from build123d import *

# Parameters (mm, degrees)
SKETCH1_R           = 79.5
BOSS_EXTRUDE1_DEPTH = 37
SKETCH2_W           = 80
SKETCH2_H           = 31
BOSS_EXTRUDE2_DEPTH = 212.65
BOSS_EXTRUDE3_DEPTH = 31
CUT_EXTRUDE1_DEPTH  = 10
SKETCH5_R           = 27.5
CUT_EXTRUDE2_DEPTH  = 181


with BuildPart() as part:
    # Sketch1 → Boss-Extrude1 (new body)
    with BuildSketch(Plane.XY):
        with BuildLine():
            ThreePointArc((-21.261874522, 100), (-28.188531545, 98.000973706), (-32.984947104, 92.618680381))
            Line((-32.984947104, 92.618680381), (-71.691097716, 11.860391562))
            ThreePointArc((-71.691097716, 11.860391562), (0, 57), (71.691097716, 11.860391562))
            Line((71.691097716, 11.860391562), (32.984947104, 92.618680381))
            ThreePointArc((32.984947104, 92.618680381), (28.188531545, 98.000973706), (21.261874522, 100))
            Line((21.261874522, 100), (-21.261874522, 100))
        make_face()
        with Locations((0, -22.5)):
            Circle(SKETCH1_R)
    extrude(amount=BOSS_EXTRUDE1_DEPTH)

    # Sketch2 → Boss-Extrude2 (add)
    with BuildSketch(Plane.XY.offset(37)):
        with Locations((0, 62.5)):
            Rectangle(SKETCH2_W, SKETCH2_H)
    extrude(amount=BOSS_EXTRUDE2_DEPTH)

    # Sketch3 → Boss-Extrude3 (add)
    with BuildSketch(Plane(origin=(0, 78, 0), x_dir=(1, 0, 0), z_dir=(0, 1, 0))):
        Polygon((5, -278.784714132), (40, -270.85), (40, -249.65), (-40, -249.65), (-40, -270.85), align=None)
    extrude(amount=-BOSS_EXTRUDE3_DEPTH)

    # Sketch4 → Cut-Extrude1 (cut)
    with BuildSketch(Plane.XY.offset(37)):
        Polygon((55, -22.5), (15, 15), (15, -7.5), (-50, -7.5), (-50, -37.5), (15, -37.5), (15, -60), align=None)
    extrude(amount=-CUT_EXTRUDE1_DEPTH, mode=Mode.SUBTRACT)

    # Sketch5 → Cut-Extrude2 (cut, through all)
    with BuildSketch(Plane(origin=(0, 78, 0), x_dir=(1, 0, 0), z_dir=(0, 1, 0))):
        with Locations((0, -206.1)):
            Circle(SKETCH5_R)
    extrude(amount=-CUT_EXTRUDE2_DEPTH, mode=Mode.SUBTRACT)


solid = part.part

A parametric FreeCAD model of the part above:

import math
import FreeCAD as App
import Part
import Sketcher

V = App.Vector
Q = App.Units.Quantity


def add_polygon(sketch, points):
    """Adds a closed chain of lines whose ends are joined by coincident constraints."""
    first, n = sketch.GeometryCount, len(points)
    for a, b in zip(points, points[1:] + points[:1]):
        sketch.addGeometry(Part.LineSegment(App.Vector(*a, 0), App.Vector(*b, 0)), False)
    for i in range(n):
        sketch.addConstraint(Sketcher.Constraint("Coincident", first + i, 2, first + (i + 1) % n, 1))

doc = App.newDocument("Part")
body = doc.addObject("PartDesign::Body", "Body")

sketch1 = body.newObject("Sketcher::SketchObject", "Sketch")
sketch1.AttachmentSupport = (doc.getObject("XY_Plane"), [""])
sketch1.MapMode = "FlatFace"
sketch1.addGeometry([
    Part.ArcOfCircle(Part.Circle(V(-21.261875, 87, 0), V(0, 0, 1), 13), math.radians(90), math.radians(154.392348)),
    Part.LineSegment(V(-32.984947, 92.61868, 0), V(-71.691098, 11.860392, 0)),
    Part.ArcOfCircle(Part.Circle(V(0, -22.5, 0), V(0, 0, 1), 79.5), math.radians(154.392348), math.radians(385.607652)),
    Part.LineSegment(V(71.691098, 11.860392, 0), V(32.984947, 92.61868, 0)),
    Part.ArcOfCircle(Part.Circle(V(21.261875, 87, 0), V(0, 0, 1), 13), math.radians(25.607652), math.radians(90)),
    Part.LineSegment(V(21.261875, 100, 0), V(-21.261875, 100, 0)),
], False)
sketch1.addConstraint([
    Sketcher.Constraint("Tangent", 0, 2, 1, 1),
    Sketcher.Constraint("Tangent", 1, 2, 2, 1),
    Sketcher.Constraint("Tangent", 2, 2, 3, 1),
    Sketcher.Constraint("Tangent", 3, 2, 4, 1),
    Sketcher.Constraint("Tangent", 4, 2, 5, 1),
    Sketcher.Constraint("Tangent", 5, 2, 0, 1),
    Sketcher.Constraint("Horizontal", 5),
    Sketcher.Constraint("Equal", 0, 4),
    Sketcher.Constraint("Symmetric", 1, 2, 2, 2, -2),
    Sketcher.Constraint("Radius", 0, 13.0),
    Sketcher.Constraint("Radius", 2, 79.5),
    Sketcher.Constraint("DistanceY", -1, 1, 0, 3, 87.0),
    Sketcher.Constraint("DistanceY", 2, 3, -1, 1, 22.5),
    Sketcher.Constraint("DistanceX", 5, 2, 5, 1, 42.523749),
])
pad1 = body.newObject("PartDesign::Pad", "Pad")
pad1.Profile = sketch1
pad1.Length = 37

sketch2 = body.newObject("Sketcher::SketchObject", "Sketch001")
sketch2.AttachmentSupport = (doc.getObject("XY_Plane"), [""])
sketch2.MapMode = "FlatFace"
sketch2.AttachmentOffset = App.Placement(V(0, 0, 37), App.Rotation())
add_polygon(sketch2, [(-40, 78), (-40, 47), (40, 47), (40, 78)])
sketch2.addConstraint([
    Sketcher.Constraint("Vertical", 0),
    Sketcher.Constraint("Horizontal", 1),
    Sketcher.Constraint("Vertical", 2),
    Sketcher.Constraint("Horizontal", 3),
    Sketcher.Constraint("DistanceX", 1, 1, 1, 2, 80.0),
    Sketcher.Constraint("DistanceY", 0, 2, 0, 1, 31.0),
    Sketcher.Constraint("DistanceX", 0, 2, -1, 1, 40.0),
    Sketcher.Constraint("DistanceY", -1, 1, 0, 2, 47.0),
])
pad2 = body.newObject("PartDesign::Pad", "Pad001")
pad2.Profile = sketch2
pad2.Length = 212.65

sketch3 = body.newObject("Sketcher::SketchObject", "Sketch002")
sketch3.AttachmentSupport = (doc.getObject("XZ_Plane"), [""])
sketch3.MapMode = "FlatFace"
sketch3.AttachmentOffset = App.Placement(V(0, 0, -78), App.Rotation())
add_polygon(sketch3, [(5, 278.784714), (40, 270.85), (40, 249.65), (-40, 249.65), (-40, 270.85)])
sketch3.addConstraint([
    Sketcher.Constraint("Vertical", 1),
    Sketcher.Constraint("Horizontal", 2),
    Sketcher.Constraint("Vertical", 3),
    Sketcher.Constraint("Symmetric", 0, 2, 3, 2, -2),
    Sketcher.Constraint("DistanceX", 2, 2, 2, 1, 80.0),
    Sketcher.Constraint("Angle", 4, Q("10 deg")),
    Sketcher.Constraint("DistanceY", 1, 2, 1, 1, 21.2),
    Sketcher.Constraint("DistanceX", -1, 1, 4, 2, 5.0),
    Sketcher.Constraint("DistanceY", -1, 1, 0, 2, 270.85),
])
pad3 = body.newObject("PartDesign::Pad", "Pad002")
pad3.Profile = sketch3
pad3.Length = 31

sketch4 = body.newObject("Sketcher::SketchObject", "Sketch003")
sketch4.AttachmentSupport = (doc.getObject("XY_Plane"), [""])
sketch4.MapMode = "FlatFace"
sketch4.AttachmentOffset = App.Placement(V(0, 0, 37), App.Rotation())
add_polygon(sketch4, [(55, -22.5), (15, 15), (15, -7.5), (-50, -7.5), (-50, -37.5), (15, -37.5), (15, -60)])
sketch4.addConstraint([
    Sketcher.Constraint("Vertical", 1),
    Sketcher.Constraint("Horizontal", 2),
    Sketcher.Constraint("Vertical", 3),
    Sketcher.Constraint("Horizontal", 4),
    Sketcher.Constraint("Vertical", 5),
    Sketcher.Constraint("Vertical", 1, 2, 4, 2),
    Sketcher.Constraint("Equal", 1, 5),
    Sketcher.Constraint("Equal", 0, 6),
    Sketcher.Constraint("DistanceX", 2, 2, 2, 1, 65.0),
    Sketcher.Constraint("DistanceY", 3, 2, 3, 1, 30.0),
    Sketcher.Constraint("DistanceY", 1, 2, 1, 1, 22.5),
    Sketcher.Constraint("DistanceX", -1, 1, 0, 2, 15.0),
    Sketcher.Constraint("DistanceY", -1, 1, 0, 2, 15.0),
    Sketcher.Constraint("DistanceX", -1, 1, 6, 2, 55.0),
])
pocket1 = body.newObject("PartDesign::Pocket", "Pocket")
pocket1.Profile = sketch4
pocket1.Length = 10

sketch5 = body.newObject("Sketcher::SketchObject", "Sketch004")
sketch5.AttachmentSupport = (doc.getObject("XZ_Plane"), [""])
sketch5.MapMode = "FlatFace"
sketch5.AttachmentOffset = App.Placement(V(0, 0, -78), App.Rotation())
sketch5.addGeometry(Part.Circle(V(0, 206.1, 0), V(0, 0, 1), 27.5), False)
sketch5.addConstraint([
    Sketcher.Constraint("PointOnObject", 0, 3, -2),
    Sketcher.Constraint("Diameter", 0, 55.0),
    Sketcher.Constraint("DistanceY", -1, 1, 0, 3, 206.1),
])
pocket2 = body.newObject("PartDesign::Pocket", "Pocket001")
pocket2.Profile = sketch5
pocket2.Type = "ThroughAll"
pocket2.Reversed = True

doc.recompute()
